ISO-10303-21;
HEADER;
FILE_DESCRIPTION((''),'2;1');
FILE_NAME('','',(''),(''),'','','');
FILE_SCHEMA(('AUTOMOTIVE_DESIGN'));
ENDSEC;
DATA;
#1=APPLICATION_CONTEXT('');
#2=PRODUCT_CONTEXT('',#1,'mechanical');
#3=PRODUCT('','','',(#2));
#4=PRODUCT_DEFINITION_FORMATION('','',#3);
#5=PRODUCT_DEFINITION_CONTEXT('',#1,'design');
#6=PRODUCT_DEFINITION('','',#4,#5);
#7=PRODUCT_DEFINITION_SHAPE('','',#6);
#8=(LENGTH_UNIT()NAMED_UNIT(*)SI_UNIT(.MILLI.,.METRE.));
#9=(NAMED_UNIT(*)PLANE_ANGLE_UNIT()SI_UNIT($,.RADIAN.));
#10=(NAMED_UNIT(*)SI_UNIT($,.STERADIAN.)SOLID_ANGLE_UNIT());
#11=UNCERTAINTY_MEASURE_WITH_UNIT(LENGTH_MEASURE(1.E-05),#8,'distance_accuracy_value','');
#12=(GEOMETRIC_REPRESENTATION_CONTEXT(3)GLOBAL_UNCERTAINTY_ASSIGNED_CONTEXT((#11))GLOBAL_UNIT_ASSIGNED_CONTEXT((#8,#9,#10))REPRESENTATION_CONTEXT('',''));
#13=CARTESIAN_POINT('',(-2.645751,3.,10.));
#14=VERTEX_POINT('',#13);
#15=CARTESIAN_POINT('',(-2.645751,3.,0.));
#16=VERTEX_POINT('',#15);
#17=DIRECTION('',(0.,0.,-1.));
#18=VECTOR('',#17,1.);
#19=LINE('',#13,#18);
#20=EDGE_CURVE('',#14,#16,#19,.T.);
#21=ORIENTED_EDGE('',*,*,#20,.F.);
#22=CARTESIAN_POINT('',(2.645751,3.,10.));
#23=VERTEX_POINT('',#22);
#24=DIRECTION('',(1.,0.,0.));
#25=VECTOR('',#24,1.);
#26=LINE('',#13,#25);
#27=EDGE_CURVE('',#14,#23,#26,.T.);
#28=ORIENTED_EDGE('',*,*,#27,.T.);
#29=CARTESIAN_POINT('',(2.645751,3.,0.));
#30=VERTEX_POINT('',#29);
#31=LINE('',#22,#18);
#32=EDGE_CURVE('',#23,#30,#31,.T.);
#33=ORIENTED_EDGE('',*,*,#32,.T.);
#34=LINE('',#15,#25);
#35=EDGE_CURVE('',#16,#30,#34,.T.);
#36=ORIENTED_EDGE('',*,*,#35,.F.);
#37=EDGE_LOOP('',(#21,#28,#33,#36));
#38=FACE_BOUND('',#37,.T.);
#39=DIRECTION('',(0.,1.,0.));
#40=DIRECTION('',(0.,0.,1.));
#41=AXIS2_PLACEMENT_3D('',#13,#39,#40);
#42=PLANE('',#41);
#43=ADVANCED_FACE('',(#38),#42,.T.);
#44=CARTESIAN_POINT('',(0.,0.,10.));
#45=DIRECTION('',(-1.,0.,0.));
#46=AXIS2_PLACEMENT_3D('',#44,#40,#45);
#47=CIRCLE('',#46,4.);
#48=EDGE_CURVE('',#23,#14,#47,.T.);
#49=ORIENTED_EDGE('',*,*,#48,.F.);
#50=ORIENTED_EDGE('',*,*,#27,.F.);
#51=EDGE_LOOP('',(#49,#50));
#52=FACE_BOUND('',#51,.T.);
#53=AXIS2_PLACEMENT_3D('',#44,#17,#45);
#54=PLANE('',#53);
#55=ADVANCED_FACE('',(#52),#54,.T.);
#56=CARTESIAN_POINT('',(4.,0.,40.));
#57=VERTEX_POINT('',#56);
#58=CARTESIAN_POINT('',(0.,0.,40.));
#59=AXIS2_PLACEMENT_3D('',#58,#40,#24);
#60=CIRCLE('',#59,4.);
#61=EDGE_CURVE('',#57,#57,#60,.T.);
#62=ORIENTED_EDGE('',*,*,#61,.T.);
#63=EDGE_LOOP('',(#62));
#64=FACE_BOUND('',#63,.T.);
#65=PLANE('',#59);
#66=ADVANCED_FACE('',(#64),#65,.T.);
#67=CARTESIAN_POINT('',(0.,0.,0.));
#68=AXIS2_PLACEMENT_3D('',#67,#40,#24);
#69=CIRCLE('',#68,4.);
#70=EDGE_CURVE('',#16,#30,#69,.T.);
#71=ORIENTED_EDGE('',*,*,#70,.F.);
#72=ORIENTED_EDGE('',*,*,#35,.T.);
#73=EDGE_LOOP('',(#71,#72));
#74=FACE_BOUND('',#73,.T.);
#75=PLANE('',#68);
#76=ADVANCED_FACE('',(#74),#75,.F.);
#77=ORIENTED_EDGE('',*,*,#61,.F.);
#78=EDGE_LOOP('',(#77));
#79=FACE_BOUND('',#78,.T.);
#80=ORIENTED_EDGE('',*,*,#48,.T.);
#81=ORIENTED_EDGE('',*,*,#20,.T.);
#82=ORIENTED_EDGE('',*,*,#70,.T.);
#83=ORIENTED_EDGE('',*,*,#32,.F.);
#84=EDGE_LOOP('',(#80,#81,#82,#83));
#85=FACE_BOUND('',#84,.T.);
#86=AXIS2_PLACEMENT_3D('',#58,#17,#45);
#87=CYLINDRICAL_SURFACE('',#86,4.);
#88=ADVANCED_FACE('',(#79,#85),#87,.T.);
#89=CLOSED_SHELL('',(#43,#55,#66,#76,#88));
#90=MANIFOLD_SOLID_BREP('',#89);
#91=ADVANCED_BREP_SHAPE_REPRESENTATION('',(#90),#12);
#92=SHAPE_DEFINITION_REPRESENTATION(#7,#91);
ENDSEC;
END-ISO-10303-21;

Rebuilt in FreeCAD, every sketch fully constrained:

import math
import FreeCAD as App
import Part
import Sketcher

doc = App.newDocument("Part")
params = doc.addObject("Spreadsheet::Sheet", "Params")
for row, (alias, value) in enumerate([
    ("sketch1_diameter", "8 mm"),
    ("pad1_length", "40 mm"),
    ("sketch2_radius", "4 mm"),
    ("pocket1_length", "10 mm"),
], start=1):
    params.set(f"A{row}", alias)
    params.set(f"B{row}", "=" + value)
    params.setAlias(f"B{row}", alias)

body = doc.addObject("PartDesign::Body", "Body")

# Sketch on XY plane
sketch1 = body.newObject("Sketcher::SketchObject", "Sketch")
sketch1.AttachmentSupport = (doc.getObject("XY_Plane"), [""])
sketch1.MapMode = "FlatFace"
sketch1.addGeometry(Part.Circle(App.Vector(0, 0, 0), App.Vector(0, 0, 1), 4), False)
sketch1.addConstraint(Sketcher.Constraint("Coincident", 0, 3, -1, 1))
sketch1.addConstraint(Sketcher.Constraint("Diameter", 0, 8.0))
sketch1.setExpression("Constraints[1]", "Params.sketch1_diameter")
pad1 = body.newObject("PartDesign::Pad", "Pad")
pad1.Profile = sketch1
pad1.setExpression("Length", "Params.pad1_length")

# Sketch on XY plane
sketch2 = body.newObject("Sketcher::SketchObject", "Sketch001")
sketch2.AttachmentSupport = (doc.getObject("XY_Plane"), [""])
sketch2.MapMode = "FlatFace"
sketch2.addGeometry(Part.LineSegment(App.Vector(-2.645751, 3, 0), App.Vector(2.645751, 3, 0)), False)
sketch2.addGeometry(Part.ArcOfCircle(Part.Circle(App.Vector(0, 0, 0), App.Vector(0, 0, 1), 4), math.radians(48.590378), math.radians(131.409622)), False)
sketch2.addConstraint(Sketcher.Constraint("Coincident", 0, 1, 1, 2))
sketch2.addConstraint(Sketcher.Constraint("Coincident", 1, 1, 0, 2))
sketch2.addConstraint(Sketcher.Constraint("Horizontal", 0))
sketch2.addConstraint(Sketcher.Constraint("Coincident", 1, 3, -1, 1))
sketch2.addConstraint(Sketcher.Constraint("Radius", 1, 4.0))
sketch2.addConstraint(Sketcher.Constraint("DistanceY", -1, 1, 0, 1, 3.0))
sketch2.setExpression("Constraints[4]", "Params.sketch2_radius")
pocket1 = body.newObject("PartDesign::Pocket", "Pocket")
pocket1.Profile = sketch2
pocket1.setExpression("Length", "Params.pocket1_length")
pocket1.Reversed = True

doc.recompute()
